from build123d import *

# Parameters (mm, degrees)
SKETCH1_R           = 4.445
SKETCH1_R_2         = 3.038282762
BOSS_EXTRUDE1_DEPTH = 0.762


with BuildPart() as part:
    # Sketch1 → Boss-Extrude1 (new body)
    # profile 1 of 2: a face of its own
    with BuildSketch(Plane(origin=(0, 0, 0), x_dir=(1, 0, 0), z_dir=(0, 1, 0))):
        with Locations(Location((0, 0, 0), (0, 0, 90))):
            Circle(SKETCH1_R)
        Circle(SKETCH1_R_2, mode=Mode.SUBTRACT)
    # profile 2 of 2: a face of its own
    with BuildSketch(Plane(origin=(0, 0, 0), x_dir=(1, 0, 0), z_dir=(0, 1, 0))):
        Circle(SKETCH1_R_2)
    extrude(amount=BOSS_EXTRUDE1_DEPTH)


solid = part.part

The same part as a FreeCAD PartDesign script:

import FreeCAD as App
import Part
import Sketcher
Q = App.Units.Quantity

doc = App.newDocument("Part")
params = doc.addObject("Spreadsheet::Sheet", "Params")
for row, (alias, value) in enumerate([
    ("sketch1_diameter", "0.35 in"),
    ("pad1_length", "0.03 in"),
], start=1):
    params.set(f"A{row}", alias)
    params.set(f"B{row}", "=" + value)
    params.setAlias(f"B{row}", alias)

body = doc.addObject("PartDesign::Body", "Body")

# Sketch on XZ plane
sketch1 = doc.addObject("Sketcher::SketchObject", "Sketch")
body.addObject(sketch1)
sketch1.AttachmentSupport = (doc.XZ_Plane, [""])
sketch1.MapMode = "FlatFace"
sketch1.addGeometry(Part.Circle(App.Vector(0, 0, 0), App.Vector(0, 0, 1), 4.4), False)
sketch1.addConstraint(Sketcher.Constraint("Coincident", 0, 3, -1, 1))
sketch1.addConstraint(Sketcher.Constraint("Diameter", 0, Q("0.35 in")))
sketch1.setExpression("Constraints[1]", "Params.sketch1_diameter")
pad1 = doc.addObject("PartDesign::Pad", "Pad")
body.addObject(pad1)
pad1.Profile = sketch1
pad1.setExpression("Length", "Params.pad1_length")
pad1.Reversed = True

doc.recompute()
